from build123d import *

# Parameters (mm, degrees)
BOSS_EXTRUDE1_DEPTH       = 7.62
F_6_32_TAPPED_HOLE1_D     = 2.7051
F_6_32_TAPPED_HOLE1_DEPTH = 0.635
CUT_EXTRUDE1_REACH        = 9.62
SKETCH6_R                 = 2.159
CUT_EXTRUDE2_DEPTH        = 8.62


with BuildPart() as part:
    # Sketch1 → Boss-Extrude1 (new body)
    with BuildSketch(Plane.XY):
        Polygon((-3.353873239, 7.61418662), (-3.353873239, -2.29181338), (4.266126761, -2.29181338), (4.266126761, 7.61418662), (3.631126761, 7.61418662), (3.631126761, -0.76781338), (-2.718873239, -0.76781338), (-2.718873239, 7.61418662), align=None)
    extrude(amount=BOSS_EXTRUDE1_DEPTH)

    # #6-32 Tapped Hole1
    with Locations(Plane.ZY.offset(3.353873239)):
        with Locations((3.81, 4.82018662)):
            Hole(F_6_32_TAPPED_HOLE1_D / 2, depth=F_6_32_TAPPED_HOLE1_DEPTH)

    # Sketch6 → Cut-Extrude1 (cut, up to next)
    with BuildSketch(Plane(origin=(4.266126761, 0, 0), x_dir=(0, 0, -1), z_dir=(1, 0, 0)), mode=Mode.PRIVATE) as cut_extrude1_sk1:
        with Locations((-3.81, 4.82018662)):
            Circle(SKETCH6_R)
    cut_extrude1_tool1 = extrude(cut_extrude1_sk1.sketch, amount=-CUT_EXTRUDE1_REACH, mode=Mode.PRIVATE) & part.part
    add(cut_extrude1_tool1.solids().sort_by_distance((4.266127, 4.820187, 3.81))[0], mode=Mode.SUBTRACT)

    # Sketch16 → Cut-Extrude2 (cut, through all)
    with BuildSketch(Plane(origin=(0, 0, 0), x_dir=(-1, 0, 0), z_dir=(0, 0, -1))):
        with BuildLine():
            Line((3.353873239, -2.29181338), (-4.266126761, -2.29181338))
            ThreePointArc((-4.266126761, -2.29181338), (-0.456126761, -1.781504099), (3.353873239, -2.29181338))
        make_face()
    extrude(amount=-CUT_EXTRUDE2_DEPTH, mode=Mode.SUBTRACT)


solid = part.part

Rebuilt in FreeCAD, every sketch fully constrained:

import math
import FreeCAD as App
import Part
import Sketcher
Q = App.Units.Quantity

doc = App.newDocument("Part")
body = doc.addObject("PartDesign::Body", "Body")

sketch1 = body.newObject("Sketcher::SketchObject", "Sketch")
sketch1.AttachmentSupport = (doc.getObject("XY_Plane"), [""])
sketch1.MapMode = "FlatFace"
sketch1.addGeometry([
    Part.LineSegment(App.Vector(-3.4, 7.6, 0), App.Vector(-3.4, -2.3, 0)),
    Part.LineSegment(App.Vector(-3.4, -2.3, 0), App.Vector(4.3, -2.3, 0)),
    Part.LineSegment(App.Vector(4.3, -2.3, 0), App.Vector(4.3, 7.6, 0)),
    Part.LineSegment(App.Vector(4.3, 7.6, 0), App.Vector(3.6, 7.6, 0)),
    Part.LineSegment(App.Vector(3.6, 7.6, 0), App.Vector(3.6, -0.8, 0)),
    Part.LineSegment(App.Vector(3.6, -0.8, 0), App.Vector(-2.7, -0.8, 0)),
    Part.LineSegment(App.Vector(-2.7, -0.8, 0), App.Vector(-2.7, 7.6, 0)),
    Part.LineSegment(App.Vector(-2.7, 7.6, 0), App.Vector(-3.4, 7.6, 0)),
], False)
sketch1.addConstraint([
    Sketcher.Constraint("Coincident", 0, 2, 1, 1),
    Sketcher.Constraint("Coincident", 1, 2, 2, 1),
    Sketcher.Constraint("Coincident", 2, 2, 3, 1),
    Sketcher.Constraint("Coincident", 3, 2, 4, 1),
    Sketcher.Constraint("Coincident", 4, 2, 5, 1),
    Sketcher.Constraint("Coincident", 5, 2, 6, 1),
    Sketcher.Constraint("Coincident", 6, 2, 7, 1),
    Sketcher.Constraint("Coincident", 7, 2, 0, 1),
    Sketcher.Constraint("Vertical", 0),
    Sketcher.Constraint("Horizontal", 1),
    Sketcher.Constraint("Vertical", 2),
    Sketcher.Constraint("Horizontal", 3),
    Sketcher.Constraint("Vertical", 4),
    Sketcher.Constraint("Horizontal", 5),
    Sketcher.Constraint("Vertical", 6),
    Sketcher.Constraint("Horizontal", 7),
    Sketcher.Constraint("Horizontal", 3, 2, 6, 2),
    Sketcher.Constraint("Equal", 3, 7),
    Sketcher.Constraint("DistanceX", 1, 1, 1, 2, Q("0.3 in")),
    Sketcher.Constraint("DistanceX", 5, 2, 5, 1, Q("0.25 in")),
    Sketcher.Constraint("DistanceY", 0, 2, 0, 1, Q("0.39 in")),
    Sketcher.Constraint("DistanceY", 4, 2, 4, 1, Q("0.33 in")),
    Sketcher.Constraint("DistanceX", 0, 2, -1, 1, Q("3.353873 mm")),
    Sketcher.Constraint("DistanceY", 0, 2, -1, 1, Q("2.291813 mm")),
])
pad1 = body.newObject("PartDesign::Pad", "Pad")
pad1.Profile = sketch1
pad1.Length = Q("0.3 in")

sketch2 = body.newObject("Sketcher::SketchObject", "Sketch001")
sketch2.AttachmentSupport = (doc.getObject("YZ_Plane"), [""])
sketch2.MapMode = "FlatFace"
sketch2.AttachmentOffset = App.Placement(App.Vector(0, 0, -3.353873), App.Rotation())
sketch2.addGeometry(Part.Circle(App.Vector(4.8, 3.8, 0), App.Vector(0, 0, 1), 1.4), False)
sketch2.addConstraint([
    Sketcher.Constraint("Diameter", 0, Q("0.1065 in")),
    Sketcher.Constraint("DistanceY", -1, 1, 0, 3, Q("0.15 in")),
    Sketcher.Constraint("DistanceX", -1, 1, 0, 3, Q("4.820187 mm")),
])
doc.recompute()
hole = body.newObject("PartDesign::Hole", "Hole")
hole.Profile = sketch2
hole.ThreadType = "None"
hole.Diameter = Q("0.1065 in")
hole.DepthType = "Dimension"
hole.Depth = Q("0.025 in")
hole.DrillPoint = "Flat"
hole.Reversed = True

sketch3 = body.newObject("Sketcher::SketchObject", "Sketch002")
sketch3.AttachmentSupport = (doc.getObject("YZ_Plane"), [""])
sketch3.MapMode = "FlatFace"
sketch3.AttachmentOffset = App.Placement(App.Vector(0, 0, 4.266127), App.Rotation())
sketch3.addGeometry(Part.Circle(App.Vector(4.8, 3.8, 0), App.Vector(0, 0, 1), 2.2), False)
sketch3.addConstraint([
    Sketcher.Constraint("Diameter", 0, Q("0.17 in")),
    Sketcher.Constraint("DistanceY", -1, 1, 0, 3, Q("0.15 in")),
    Sketcher.Constraint("DistanceX", -1, 1, 0, 3, Q("4.820187 mm")),
])
pocket1 = body.newObject("PartDesign::Pocket", "Pocket")
pocket1.Profile = sketch3
pocket1.Type = "UpToFirst"

sketch4 = body.newObject("Sketcher::SketchObject", "Sketch003")
sketch4.AttachmentSupport = (doc.getObject("XY_Plane"), [""])
sketch4.MapMode = "FlatFace"
sketch4.addGeometry([
    Part.LineSegment(App.Vector(4, -2, 0), App.Vector(-3, -2, 0)),
    Part.ArcOfCircle(Part.Circle(App.Vector(0, -16, 0), App.Vector(0, 0, 1), 14), math.radians(75), math.radians(105)),
], False)
sketch4.addConstraint([
    Sketcher.Constraint("Coincident", 0, 1, 1, 1),
    Sketcher.Constraint("Coincident", 1, 2, 0, 2),
    Sketcher.Constraint("Horizontal", 0),
    Sketcher.Constraint("Radius", 1, Q("0.57 in")),
    Sketcher.Constraint("DistanceX", 0, 2, 0, 1, Q("0.3 in")),
    Sketcher.Constraint("DistanceX", -1, 1, 1, 3, Q("0.456127 mm")),
    Sketcher.Constraint("DistanceY", 1, 3, -1, 1, Q("16.259504 mm")),
])
pocket2 = body.newObject("PartDesign::Pocket", "Pocket001")
pocket2.Profile = sketch4
pocket2.Type = "ThroughAll"
pocket2.Reversed = True

doc.recompute()
